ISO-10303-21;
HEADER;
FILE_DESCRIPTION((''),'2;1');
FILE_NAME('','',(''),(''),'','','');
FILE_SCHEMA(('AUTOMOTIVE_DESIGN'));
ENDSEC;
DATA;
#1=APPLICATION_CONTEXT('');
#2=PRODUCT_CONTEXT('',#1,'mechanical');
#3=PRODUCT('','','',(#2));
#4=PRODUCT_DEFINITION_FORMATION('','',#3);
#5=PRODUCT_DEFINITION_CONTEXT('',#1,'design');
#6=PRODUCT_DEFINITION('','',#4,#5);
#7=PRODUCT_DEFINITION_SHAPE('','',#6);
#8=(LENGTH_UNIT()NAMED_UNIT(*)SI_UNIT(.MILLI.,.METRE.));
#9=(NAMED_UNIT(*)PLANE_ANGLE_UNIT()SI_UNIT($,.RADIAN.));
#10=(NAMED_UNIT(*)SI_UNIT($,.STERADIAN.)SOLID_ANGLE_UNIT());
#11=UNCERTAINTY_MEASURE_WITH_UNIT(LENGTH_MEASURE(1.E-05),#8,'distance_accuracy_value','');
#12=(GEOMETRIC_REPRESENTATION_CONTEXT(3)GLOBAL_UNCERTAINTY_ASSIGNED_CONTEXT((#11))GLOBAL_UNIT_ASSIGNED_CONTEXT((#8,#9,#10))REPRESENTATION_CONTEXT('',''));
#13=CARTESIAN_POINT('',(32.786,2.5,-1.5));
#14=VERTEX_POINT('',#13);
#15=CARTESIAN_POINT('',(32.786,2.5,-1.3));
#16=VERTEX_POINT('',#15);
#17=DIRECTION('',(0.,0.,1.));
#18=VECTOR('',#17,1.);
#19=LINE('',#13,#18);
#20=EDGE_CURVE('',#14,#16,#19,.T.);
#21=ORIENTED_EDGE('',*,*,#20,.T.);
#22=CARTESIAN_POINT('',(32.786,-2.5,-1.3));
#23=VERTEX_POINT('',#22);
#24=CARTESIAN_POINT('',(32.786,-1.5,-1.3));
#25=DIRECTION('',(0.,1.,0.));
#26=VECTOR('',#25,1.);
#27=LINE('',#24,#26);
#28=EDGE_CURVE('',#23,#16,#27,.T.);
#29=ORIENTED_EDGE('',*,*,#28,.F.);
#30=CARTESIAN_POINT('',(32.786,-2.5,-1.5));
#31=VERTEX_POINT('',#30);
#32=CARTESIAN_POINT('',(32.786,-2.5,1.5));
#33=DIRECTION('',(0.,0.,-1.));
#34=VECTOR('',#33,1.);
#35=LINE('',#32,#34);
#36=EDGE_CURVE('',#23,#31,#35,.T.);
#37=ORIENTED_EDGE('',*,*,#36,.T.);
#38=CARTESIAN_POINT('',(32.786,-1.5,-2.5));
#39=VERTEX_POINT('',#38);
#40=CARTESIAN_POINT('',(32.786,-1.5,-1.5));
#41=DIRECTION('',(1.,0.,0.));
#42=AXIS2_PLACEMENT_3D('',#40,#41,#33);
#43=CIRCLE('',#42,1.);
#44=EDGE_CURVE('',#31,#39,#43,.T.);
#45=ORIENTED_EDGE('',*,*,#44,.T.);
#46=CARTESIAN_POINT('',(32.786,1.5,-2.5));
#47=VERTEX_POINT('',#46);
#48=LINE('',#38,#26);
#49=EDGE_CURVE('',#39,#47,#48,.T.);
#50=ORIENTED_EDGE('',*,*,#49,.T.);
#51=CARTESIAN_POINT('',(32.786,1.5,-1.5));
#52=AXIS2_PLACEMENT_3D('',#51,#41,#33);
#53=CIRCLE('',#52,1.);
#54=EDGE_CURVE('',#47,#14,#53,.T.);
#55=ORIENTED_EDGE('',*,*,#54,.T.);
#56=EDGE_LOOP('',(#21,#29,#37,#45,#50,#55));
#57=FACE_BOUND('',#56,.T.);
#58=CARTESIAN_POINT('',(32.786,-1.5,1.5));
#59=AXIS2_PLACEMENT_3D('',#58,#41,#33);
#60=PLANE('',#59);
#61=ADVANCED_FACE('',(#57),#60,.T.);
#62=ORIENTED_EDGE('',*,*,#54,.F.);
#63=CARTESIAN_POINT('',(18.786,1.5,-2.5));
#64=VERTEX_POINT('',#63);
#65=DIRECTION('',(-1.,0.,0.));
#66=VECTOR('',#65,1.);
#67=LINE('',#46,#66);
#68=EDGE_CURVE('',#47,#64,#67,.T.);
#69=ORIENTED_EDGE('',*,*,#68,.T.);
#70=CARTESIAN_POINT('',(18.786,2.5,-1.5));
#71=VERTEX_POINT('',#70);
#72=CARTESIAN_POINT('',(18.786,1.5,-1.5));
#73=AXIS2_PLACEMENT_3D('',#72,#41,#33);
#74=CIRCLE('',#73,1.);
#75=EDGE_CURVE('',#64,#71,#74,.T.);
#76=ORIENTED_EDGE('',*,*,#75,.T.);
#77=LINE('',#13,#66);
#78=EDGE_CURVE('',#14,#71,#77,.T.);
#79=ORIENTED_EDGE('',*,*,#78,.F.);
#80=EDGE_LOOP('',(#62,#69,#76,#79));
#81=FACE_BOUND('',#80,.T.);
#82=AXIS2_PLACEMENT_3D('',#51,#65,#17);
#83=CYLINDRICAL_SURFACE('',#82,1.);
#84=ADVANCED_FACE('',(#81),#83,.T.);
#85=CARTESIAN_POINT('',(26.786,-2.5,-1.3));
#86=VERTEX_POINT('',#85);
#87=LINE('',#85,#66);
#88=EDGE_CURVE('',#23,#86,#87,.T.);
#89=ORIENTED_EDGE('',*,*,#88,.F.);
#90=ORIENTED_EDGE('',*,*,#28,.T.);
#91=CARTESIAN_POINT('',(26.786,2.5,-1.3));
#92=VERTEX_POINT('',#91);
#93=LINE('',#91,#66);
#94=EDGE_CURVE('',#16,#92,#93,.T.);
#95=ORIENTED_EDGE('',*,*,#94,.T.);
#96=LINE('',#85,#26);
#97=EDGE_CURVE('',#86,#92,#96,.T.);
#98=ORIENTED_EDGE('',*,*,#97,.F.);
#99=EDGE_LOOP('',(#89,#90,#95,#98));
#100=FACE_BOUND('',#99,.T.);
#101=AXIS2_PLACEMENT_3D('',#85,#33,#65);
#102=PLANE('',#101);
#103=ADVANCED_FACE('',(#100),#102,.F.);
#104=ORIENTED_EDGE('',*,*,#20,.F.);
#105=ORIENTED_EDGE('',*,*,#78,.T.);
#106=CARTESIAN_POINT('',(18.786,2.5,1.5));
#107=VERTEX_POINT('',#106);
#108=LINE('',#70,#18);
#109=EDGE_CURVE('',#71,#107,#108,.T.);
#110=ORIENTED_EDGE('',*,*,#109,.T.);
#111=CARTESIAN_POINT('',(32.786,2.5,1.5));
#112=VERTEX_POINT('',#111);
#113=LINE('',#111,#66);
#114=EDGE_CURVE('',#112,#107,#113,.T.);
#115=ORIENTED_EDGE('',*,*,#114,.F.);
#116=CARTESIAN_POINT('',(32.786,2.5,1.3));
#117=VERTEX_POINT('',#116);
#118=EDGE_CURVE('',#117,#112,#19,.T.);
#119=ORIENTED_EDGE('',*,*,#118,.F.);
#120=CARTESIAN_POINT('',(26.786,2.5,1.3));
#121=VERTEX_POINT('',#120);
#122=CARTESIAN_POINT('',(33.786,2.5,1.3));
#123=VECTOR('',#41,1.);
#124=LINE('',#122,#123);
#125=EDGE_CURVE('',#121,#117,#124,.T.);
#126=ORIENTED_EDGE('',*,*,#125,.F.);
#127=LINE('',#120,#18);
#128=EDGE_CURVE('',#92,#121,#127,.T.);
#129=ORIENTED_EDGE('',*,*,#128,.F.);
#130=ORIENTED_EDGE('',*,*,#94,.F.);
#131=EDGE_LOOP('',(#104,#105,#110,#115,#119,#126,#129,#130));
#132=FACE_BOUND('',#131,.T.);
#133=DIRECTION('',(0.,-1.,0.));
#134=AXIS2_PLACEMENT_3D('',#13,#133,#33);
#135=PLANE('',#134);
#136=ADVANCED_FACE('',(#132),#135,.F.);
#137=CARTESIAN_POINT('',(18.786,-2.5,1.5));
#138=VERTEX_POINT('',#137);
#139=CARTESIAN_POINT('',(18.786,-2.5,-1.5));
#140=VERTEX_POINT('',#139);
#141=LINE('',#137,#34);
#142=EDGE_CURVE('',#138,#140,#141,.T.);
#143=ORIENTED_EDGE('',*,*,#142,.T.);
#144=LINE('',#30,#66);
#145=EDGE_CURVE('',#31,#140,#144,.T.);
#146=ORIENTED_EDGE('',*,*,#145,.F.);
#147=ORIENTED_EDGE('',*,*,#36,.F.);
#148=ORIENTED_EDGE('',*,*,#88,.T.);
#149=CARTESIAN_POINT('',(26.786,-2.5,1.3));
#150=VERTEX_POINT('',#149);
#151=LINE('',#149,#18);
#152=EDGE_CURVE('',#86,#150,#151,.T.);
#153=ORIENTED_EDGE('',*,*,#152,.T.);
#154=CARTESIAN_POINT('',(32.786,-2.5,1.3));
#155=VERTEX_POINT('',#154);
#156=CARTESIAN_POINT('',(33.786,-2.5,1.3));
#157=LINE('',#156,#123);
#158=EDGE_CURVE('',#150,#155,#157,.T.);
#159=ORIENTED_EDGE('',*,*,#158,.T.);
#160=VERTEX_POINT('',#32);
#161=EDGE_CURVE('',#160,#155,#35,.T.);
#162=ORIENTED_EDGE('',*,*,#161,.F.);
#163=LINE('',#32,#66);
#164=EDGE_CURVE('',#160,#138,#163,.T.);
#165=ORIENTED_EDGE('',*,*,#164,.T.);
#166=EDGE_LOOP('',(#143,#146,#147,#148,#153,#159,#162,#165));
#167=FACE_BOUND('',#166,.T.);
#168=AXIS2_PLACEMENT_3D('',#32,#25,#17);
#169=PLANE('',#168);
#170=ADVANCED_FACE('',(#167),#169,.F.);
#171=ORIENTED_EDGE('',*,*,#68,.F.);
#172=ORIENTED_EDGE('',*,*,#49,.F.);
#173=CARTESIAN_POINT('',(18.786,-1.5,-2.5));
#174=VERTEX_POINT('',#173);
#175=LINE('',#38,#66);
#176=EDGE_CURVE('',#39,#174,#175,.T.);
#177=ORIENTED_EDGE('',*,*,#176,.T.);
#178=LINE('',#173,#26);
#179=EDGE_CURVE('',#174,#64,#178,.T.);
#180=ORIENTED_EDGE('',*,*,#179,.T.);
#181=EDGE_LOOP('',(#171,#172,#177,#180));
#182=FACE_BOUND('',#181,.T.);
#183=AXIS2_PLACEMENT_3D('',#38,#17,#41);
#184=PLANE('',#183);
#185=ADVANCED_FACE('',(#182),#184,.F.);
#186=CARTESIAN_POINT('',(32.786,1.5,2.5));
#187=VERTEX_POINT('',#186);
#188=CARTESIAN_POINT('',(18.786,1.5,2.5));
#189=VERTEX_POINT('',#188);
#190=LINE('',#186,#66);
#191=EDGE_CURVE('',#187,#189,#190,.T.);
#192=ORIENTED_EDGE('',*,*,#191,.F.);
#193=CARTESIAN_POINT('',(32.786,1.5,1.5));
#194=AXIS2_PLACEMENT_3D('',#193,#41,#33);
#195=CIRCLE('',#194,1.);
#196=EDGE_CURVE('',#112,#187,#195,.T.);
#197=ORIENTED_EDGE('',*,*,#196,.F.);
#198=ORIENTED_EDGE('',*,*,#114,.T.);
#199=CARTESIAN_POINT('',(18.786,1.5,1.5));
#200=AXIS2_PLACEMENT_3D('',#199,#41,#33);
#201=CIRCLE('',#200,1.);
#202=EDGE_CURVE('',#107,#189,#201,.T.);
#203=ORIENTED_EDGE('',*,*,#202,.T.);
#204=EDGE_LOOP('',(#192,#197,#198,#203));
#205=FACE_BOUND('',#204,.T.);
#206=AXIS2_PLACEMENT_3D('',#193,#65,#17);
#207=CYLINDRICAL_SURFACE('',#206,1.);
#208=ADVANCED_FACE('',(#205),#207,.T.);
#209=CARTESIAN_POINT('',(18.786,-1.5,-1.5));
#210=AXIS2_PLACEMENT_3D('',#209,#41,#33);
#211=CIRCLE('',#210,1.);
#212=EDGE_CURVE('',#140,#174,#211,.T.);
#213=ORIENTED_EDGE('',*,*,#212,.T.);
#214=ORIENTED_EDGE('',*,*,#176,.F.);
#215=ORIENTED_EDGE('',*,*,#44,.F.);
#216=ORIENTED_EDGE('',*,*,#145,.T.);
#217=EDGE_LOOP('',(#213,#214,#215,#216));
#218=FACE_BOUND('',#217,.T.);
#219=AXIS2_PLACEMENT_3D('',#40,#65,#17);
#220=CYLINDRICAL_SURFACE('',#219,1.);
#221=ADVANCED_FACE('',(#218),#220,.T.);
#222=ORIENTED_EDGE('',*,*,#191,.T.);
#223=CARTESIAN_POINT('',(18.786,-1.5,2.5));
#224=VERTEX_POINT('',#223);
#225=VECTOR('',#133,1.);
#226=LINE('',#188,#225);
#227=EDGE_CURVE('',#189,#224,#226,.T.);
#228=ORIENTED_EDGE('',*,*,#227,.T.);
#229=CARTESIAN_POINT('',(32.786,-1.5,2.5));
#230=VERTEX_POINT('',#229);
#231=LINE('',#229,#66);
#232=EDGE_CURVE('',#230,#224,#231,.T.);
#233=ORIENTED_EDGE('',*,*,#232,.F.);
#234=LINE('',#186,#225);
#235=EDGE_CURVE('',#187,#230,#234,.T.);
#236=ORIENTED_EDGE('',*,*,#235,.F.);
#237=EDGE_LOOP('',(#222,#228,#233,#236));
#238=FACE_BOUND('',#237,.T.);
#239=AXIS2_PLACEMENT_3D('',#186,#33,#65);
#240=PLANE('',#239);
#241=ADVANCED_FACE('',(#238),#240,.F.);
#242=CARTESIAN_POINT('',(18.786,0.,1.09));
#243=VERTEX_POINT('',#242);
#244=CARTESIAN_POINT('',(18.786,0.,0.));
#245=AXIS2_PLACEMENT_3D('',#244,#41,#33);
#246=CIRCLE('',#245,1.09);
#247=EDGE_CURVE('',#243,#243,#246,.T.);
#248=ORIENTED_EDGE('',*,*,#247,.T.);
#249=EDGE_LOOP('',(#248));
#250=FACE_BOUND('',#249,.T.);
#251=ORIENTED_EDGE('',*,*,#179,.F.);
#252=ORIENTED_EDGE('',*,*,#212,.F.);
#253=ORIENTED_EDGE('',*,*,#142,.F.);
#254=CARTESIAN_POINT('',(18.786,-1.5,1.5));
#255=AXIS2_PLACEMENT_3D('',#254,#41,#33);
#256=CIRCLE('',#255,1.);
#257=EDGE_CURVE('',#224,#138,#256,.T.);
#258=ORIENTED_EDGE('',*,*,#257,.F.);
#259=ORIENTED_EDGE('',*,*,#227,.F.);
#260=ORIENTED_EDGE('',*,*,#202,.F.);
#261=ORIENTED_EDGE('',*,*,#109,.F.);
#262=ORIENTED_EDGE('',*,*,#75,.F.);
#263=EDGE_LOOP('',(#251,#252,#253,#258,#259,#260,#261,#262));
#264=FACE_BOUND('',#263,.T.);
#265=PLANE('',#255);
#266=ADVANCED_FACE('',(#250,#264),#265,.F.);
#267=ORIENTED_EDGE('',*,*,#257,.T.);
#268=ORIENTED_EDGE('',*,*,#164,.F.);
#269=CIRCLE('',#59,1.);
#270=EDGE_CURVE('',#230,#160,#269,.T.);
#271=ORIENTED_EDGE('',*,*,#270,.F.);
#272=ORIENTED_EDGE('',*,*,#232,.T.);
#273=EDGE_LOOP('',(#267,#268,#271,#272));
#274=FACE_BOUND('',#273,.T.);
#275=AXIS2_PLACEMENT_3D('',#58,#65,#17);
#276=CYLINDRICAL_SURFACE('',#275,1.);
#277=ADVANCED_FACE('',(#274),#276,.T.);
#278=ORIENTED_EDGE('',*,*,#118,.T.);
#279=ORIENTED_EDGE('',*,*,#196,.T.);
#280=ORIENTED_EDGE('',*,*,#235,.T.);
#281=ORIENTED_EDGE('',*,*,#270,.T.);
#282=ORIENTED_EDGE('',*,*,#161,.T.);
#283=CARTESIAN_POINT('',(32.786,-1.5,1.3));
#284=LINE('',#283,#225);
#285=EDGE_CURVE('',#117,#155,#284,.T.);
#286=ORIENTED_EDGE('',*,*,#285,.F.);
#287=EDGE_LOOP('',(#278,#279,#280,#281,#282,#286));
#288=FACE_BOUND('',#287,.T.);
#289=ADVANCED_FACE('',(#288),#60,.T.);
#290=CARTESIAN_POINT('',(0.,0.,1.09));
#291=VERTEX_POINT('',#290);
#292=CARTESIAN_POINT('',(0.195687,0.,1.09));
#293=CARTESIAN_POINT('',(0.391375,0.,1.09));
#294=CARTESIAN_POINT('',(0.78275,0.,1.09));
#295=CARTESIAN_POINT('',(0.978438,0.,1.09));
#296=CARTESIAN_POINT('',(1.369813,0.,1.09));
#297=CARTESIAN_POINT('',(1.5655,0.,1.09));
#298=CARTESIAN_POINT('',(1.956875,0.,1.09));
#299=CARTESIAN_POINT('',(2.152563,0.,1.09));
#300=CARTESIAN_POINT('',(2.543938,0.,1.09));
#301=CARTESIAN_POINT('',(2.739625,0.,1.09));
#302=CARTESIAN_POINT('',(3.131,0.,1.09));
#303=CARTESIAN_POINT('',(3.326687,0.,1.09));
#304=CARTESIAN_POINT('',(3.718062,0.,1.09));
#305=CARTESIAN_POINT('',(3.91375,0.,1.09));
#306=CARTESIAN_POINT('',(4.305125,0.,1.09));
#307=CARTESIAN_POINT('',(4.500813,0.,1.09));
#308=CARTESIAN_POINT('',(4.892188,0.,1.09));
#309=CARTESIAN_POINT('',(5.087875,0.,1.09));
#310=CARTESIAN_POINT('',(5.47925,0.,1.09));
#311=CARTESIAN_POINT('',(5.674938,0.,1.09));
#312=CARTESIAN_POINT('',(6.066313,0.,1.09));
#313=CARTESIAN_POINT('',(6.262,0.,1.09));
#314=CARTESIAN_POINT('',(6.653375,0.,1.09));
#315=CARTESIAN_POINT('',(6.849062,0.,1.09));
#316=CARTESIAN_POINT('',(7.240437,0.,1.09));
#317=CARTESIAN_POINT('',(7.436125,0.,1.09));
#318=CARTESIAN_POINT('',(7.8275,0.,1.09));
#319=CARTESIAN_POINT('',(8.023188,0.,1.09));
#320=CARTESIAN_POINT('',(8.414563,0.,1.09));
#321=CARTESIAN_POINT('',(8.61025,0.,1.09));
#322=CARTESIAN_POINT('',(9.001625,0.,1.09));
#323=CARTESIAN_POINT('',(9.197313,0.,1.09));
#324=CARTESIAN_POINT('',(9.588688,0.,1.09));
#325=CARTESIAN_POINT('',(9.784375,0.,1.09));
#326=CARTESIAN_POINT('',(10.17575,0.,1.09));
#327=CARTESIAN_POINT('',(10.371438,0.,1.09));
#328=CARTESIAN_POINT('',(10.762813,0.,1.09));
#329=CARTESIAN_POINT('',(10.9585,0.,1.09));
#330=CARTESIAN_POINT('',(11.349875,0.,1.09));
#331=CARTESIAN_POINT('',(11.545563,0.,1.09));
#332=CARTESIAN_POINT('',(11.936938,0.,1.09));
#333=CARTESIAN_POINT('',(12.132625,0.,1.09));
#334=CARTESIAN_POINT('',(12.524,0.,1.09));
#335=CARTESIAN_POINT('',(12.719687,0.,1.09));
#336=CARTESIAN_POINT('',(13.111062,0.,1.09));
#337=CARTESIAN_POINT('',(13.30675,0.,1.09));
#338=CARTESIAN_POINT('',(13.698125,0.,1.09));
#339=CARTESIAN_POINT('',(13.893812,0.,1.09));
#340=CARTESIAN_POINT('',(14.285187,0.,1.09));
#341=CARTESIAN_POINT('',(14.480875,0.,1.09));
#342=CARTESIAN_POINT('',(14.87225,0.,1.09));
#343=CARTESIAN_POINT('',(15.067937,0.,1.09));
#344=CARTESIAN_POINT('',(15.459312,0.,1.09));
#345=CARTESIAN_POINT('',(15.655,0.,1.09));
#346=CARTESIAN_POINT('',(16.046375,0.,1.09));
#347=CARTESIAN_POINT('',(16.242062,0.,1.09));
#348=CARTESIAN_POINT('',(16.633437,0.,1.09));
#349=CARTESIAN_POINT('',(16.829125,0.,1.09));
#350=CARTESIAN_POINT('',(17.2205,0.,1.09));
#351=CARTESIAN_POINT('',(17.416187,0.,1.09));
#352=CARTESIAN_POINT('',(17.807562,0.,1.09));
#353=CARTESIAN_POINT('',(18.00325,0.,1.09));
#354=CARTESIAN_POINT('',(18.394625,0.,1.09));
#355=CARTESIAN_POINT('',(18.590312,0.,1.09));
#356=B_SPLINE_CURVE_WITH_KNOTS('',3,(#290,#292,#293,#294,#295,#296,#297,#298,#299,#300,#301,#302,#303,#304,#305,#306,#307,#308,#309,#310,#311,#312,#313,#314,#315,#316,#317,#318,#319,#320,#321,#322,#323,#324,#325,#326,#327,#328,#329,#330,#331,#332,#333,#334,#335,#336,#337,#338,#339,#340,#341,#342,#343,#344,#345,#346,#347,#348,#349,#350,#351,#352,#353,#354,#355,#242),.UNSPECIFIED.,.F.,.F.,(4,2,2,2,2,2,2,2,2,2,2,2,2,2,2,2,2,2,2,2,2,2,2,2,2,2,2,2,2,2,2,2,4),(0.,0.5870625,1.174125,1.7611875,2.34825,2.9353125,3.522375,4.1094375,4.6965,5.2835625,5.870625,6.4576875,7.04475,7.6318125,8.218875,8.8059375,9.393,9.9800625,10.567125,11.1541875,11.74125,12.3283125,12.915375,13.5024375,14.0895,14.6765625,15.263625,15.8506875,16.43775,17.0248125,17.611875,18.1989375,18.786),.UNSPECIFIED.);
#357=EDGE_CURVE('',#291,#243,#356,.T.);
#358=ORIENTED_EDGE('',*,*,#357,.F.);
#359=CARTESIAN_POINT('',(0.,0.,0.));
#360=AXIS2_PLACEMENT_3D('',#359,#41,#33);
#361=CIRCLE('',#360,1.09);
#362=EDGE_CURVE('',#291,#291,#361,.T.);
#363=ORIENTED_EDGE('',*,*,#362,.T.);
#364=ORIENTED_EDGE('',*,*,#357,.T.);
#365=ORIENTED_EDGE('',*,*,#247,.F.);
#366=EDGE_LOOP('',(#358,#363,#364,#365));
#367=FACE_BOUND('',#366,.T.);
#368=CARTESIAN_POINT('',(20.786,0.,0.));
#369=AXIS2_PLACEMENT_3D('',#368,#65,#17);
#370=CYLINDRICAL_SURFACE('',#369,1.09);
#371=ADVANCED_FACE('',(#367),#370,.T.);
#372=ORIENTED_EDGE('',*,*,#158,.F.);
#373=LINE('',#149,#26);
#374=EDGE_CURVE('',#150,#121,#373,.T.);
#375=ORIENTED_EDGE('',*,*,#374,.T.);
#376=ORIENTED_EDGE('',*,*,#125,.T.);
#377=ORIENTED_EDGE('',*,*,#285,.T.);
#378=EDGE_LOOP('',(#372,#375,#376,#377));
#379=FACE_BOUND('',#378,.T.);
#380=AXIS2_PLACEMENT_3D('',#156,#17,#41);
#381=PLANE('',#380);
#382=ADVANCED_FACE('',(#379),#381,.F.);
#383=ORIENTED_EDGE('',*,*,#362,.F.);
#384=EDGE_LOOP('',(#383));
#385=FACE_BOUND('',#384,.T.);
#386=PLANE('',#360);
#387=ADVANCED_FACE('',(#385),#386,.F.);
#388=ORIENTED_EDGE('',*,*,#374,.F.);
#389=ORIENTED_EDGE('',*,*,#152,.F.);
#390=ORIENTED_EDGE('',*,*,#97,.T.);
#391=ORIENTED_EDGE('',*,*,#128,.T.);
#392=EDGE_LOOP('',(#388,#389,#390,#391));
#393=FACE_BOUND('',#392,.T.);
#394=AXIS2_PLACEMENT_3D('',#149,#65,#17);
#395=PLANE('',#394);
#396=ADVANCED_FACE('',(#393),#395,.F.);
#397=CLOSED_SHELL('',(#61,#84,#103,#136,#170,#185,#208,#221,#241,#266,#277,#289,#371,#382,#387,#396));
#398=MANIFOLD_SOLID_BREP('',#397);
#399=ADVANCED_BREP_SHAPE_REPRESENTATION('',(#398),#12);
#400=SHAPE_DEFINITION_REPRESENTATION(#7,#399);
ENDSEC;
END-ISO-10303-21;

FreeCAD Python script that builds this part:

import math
import FreeCAD as App
import Part
import Sketcher
from FreeCAD import Vector

doc = App.newDocument("Part")
body = doc.addObject("PartDesign::Body", "Body")

# Sketch on YZ plane
sketch1 = body.newObject("Sketcher::SketchObject", "Sketch")
sketch1.AttachmentSupport = (doc.getObject("YZ_Plane"), [""])
sketch1.MapMode = "FlatFace"
sketch1.addGeometry(Part.Circle(Vector(0, 0, 0), Vector(0, 0, 1), 1.1), False)
sketch1.addConstraint([
    Sketcher.Constraint("Coincident", 0, 3, -1, 1),
    Sketcher.Constraint("Diameter", 0, 2.18),
])
pad1 = body.newObject("PartDesign::Pad", "Pad")
pad1.Profile = sketch1
pad1.Length = 20.786

# Sketch on YZ plane
sketch2 = body.newObject("Sketcher::SketchObject", "Sketch001")
sketch2.AttachmentSupport = (doc.getObject("YZ_Plane"), [""])
sketch2.MapMode = "FlatFace"
sketch2.AttachmentOffset = App.Placement(Vector(0, 0, 18.786), App.Rotation())
sketch2.addGeometry([
    Part.LineSegment(Vector(-2.5, 1.5, 0), Vector(-2.5, -1.5, 0)),  # 0
    Part.ArcOfCircle(Part.Circle(Vector(-1.5, -1.5, 0), Vector(0, 0, 1), 1), math.radians(-180), math.radians(-90)),  # 1
    Part.LineSegment(Vector(-1.5, -2.5, 0), Vector(1.5, -2.5, 0)),  # 2
    Part.ArcOfCircle(Part.Circle(Vector(1.5, -1.5, 0), Vector(0, 0, 1), 1), math.radians(-90), math.radians(0)),  # 3
    Part.LineSegment(Vector(2.5, -1.5, 0), Vector(2.5, 1.5, 0)),  # 4
    Part.ArcOfCircle(Part.Circle(Vector(1.5, 1.5, 0), Vector(0, 0, 1), 1), math.radians(0), math.radians(90)),  # 5
    Part.LineSegment(Vector(1.5, 2.5, 0), Vector(-1.5, 2.5, 0)),  # 6
    Part.ArcOfCircle(Part.Circle(Vector(-1.5, 1.5, 0), Vector(0, 0, 1), 1), math.radians(90), math.radians(180)),  # 7
], False)
sketch2.addConstraint([
    Sketcher.Constraint("Tangent", 0, 2, 1, 1),
    Sketcher.Constraint("Tangent", 1, 2, 2, 1),
    Sketcher.Constraint("Tangent", 2, 2, 3, 1),
    Sketcher.Constraint("Tangent", 3, 2, 4, 1),
    Sketcher.Constraint("Tangent", 4, 2, 5, 1),
    Sketcher.Constraint("Tangent", 5, 2, 6, 1),
    Sketcher.Constraint("Tangent", 6, 2, 7, 1),
    Sketcher.Constraint("Tangent", 7, 2, 0, 1),
    Sketcher.Constraint("Vertical", 0),
    Sketcher.Constraint("Horizontal", 2),
    Sketcher.Constraint("Vertical", 4),
    Sketcher.Constraint("Horizontal", 6),
    Sketcher.Constraint("Equal", 1, 3),
    Sketcher.Constraint("Equal", 3, 5),
    Sketcher.Constraint("Equal", 5, 7),
    Sketcher.Constraint("Symmetric", 1, 3, 5, 3, -1, 1),
    Sketcher.Constraint("Equal", 6, 0),
    Sketcher.Constraint("Radius", 1, 1.0),
    Sketcher.Constraint("DistanceX", 2, 1, 2, 2, 3.0),
])
pad2 = body.newObject("PartDesign::Pad", "Pad001")
pad2.Profile = sketch2
pad2.Length = 14

# Sketch on XZ plane
sketch3 = body.newObject("Sketcher::SketchObject", "Sketch002")
sketch3.AttachmentSupport = (doc.getObject("XZ_Plane"), [""])
sketch3.MapMode = "FlatFace"
sketch3.addGeometry([
    Part.LineSegment(Vector(26.8, -1.3, 0), Vector(26.8, 1.3, 0)),
    Part.LineSegment(Vector(26.8, 1.3, 0), Vector(33.8, 1.3, 0)),
    Part.LineSegment(Vector(33.8, 1.3, 0), Vector(33.8, -1.3, 0)),
    Part.LineSegment(Vector(33.8, -1.3, 0), Vector(26.8, -1.3, 0)),
], False)
sketch3.addConstraint([
    Sketcher.Constraint("Coincident", 0, 2, 1, 1),
    Sketcher.Constraint("Coincident", 1, 2, 2, 1),
    Sketcher.Constraint("Coincident", 2, 2, 3, 1),
    Sketcher.Constraint("Coincident", 3, 2, 0, 1),
    Sketcher.Constraint("Vertical", 0),
    Sketcher.Constraint("Horizontal", 1),
    Sketcher.Constraint("Vertical", 2),
    Sketcher.Constraint("Horizontal", 3),
    Sketcher.Constraint("DistanceX", 1, 1, 1, 2, 7.0),
    Sketcher.Constraint("DistanceY", 0, 1, 0, 2, 2.6),
    Sketcher.Constraint("DistanceY", -1, 1, 0, 2, 1.3),
    Sketcher.Constraint("DistanceX", -1, 1, 0, 2, 26.786),
])
pocket1 = body.newObject("PartDesign::Pocket", "Pocket")
pocket1.Profile = sketch3
pocket1.Type = "ThroughAll"
pocket1.Midplane = True

doc.recompute()
